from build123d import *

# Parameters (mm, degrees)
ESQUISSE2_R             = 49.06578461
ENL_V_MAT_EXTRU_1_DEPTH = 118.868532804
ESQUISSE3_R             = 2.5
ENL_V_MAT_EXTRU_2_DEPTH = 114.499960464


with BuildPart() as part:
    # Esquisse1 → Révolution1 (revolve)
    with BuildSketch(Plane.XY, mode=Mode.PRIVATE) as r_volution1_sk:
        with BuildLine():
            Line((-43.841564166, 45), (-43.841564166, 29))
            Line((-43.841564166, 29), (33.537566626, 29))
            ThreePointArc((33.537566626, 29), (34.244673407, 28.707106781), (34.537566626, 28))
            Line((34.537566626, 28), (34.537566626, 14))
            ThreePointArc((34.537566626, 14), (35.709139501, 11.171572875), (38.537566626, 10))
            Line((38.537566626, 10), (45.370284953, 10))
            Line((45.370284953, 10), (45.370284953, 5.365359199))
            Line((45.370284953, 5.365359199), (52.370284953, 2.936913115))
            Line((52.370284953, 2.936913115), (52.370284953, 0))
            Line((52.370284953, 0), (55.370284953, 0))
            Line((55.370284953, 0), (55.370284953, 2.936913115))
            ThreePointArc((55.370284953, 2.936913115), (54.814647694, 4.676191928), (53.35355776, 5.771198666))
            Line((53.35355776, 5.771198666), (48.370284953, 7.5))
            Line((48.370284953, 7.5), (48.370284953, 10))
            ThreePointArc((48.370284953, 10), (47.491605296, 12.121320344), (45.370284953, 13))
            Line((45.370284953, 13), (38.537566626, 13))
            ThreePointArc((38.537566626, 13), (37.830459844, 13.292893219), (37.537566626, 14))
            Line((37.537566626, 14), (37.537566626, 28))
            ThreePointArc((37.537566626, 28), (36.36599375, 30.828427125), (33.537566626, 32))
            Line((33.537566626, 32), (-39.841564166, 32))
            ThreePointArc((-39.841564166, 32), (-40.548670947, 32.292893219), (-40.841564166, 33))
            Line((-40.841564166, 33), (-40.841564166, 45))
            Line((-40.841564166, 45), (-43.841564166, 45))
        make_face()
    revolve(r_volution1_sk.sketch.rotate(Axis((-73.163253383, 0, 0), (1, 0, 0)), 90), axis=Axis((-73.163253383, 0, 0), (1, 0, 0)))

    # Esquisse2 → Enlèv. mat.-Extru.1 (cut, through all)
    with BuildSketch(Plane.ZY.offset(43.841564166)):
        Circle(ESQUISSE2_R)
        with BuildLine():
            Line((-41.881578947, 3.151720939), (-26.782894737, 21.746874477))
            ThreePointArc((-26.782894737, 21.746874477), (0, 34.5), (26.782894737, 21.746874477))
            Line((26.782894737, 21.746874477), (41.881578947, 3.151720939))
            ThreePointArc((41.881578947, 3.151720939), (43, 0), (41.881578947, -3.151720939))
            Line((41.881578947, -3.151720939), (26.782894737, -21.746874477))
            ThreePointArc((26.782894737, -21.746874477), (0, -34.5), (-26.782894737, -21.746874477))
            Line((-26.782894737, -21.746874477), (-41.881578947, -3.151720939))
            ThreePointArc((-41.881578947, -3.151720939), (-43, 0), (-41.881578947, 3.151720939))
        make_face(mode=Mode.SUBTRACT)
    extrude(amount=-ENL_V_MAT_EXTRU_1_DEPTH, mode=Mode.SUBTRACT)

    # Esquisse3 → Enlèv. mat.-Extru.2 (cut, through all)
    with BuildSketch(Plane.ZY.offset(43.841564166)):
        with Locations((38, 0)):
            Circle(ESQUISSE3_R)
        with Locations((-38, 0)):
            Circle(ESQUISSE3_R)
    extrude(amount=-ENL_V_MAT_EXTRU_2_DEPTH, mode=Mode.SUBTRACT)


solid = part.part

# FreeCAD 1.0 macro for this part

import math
import FreeCAD as App
import Part
import Sketcher

V = App.Vector

doc = App.newDocument("Part")
body = doc.addObject("PartDesign::Body", "Body")

# Sketch on XY plane
sketch1 = doc.addObject("Sketcher::SketchObject", "Sketch")
body.addObject(sketch1)
sketch1.AttachmentSupport = (doc.XY_Plane, [""])
sketch1.MapMode = "FlatFace"
sketch1.addGeometry([
    Part.LineSegment(V(-43.841564, 45, 0), V(-43.841564, 29, 0)),  # 0
    Part.LineSegment(V(-43.841564, 29, 0), V(33.537567, 29, 0)),  # 1
    Part.ArcOfCircle(Part.Circle(V(33.537567, 28, 0), V(0, 0, 1), 1), math.radians(0), math.radians(90)),  # 2
    Part.LineSegment(V(34.537567, 28, 0), V(34.537567, 14, 0)),  # 3
    Part.ArcOfCircle(Part.Circle(V(38.537567, 14, 0), V(0, 0, 1), 4), math.radians(180), math.radians(270)),  # 4
    Part.LineSegment(V(38.537567, 10, 0), V(45.370285, 10, 0)),  # 5
    Part.LineSegment(V(45.370285, 10, 0), V(45.370285, 5.365359, 0)),  # 6
    Part.LineSegment(V(45.370285, 5.365359, 0), V(52.370285, 2.936913, 0)),  # 7
    Part.LineSegment(V(52.370285, 2.936913, 0), V(52.370285, 0, 0)),  # 8
    Part.LineSegment(V(52.370285, 0, 0), V(55.370285, 0, 0)),  # 9
    Part.LineSegment(V(55.370285, 0, 0), V(55.370285, 2.936913, 0)),  # 10
    Part.ArcOfCircle(Part.Circle(V(52.370285, 2.936913, 0), V(0, 0, 1), 3), math.radians(0), math.radians(70.867273)),  # 11
    Part.LineSegment(V(53.353558, 5.771199, 0), V(48.370285, 7.5, 0)),  # 12
    Part.LineSegment(V(48.370285, 7.5, 0), V(48.370285, 10, 0)),  # 13
    Part.ArcOfCircle(Part.Circle(V(45.370285, 10, 0), V(0, 0, 1), 3), math.radians(0), math.radians(90)),  # 14
    Part.LineSegment(V(45.370285, 13, 0), V(38.537567, 13, 0)),  # 15
    Part.ArcOfCircle(Part.Circle(V(38.537567, 14, 0), V(0, 0, 1), 1), math.radians(180), math.radians(270)),  # 16
    Part.LineSegment(V(37.537567, 14, 0), V(37.537567, 28, 0)),  # 17
    Part.ArcOfCircle(Part.Circle(V(33.537567, 28, 0), V(0, 0, 1), 4), math.radians(0), math.radians(90)),  # 18
    Part.LineSegment(V(33.537567, 32, 0), V(-39.841564, 32, 0)),  # 19
    Part.ArcOfCircle(Part.Circle(V(-39.841564, 33, 0), V(0, 0, 1), 1), math.radians(-180), math.radians(-90)),  # 20
    Part.LineSegment(V(-40.841564, 33, 0), V(-40.841564, 45, 0)),  # 21
    Part.LineSegment(V(-40.841564, 45, 0), V(-43.841564, 45, 0)),  # 22
], False)
sketch1.addConstraint([
    Sketcher.Constraint("Coincident", 0, 2, 1, 1),
    Sketcher.Constraint("Tangent", 1, 2, 2, 2),
    Sketcher.Constraint("Tangent", 2, 1, 3, 1),
    Sketcher.Constraint("Tangent", 3, 2, 4, 1),
    Sketcher.Constraint("Tangent", 4, 2, 5, 1),
    Sketcher.Constraint("Coincident", 5, 2, 6, 1),
    Sketcher.Constraint("Coincident", 6, 2, 7, 1),
    Sketcher.Constraint("Coincident", 7, 2, 8, 1),
    Sketcher.Constraint("Coincident", 8, 2, 9, 1),
    Sketcher.Constraint("Coincident", 9, 2, 10, 1),
    Sketcher.Constraint("Tangent", 10, 2, 11, 1),
    Sketcher.Constraint("Tangent", 11, 2, 12, 1),
    Sketcher.Constraint("Coincident", 12, 2, 13, 1),
    Sketcher.Constraint("Tangent", 13, 2, 14, 1),
    Sketcher.Constraint("Tangent", 14, 2, 15, 1),
    Sketcher.Constraint("Tangent", 15, 2, 16, 2),
    Sketcher.Constraint("Tangent", 16, 1, 17, 1),
    Sketcher.Constraint("Tangent", 17, 2, 18, 1),
    Sketcher.Constraint("Tangent", 18, 2, 19, 1),
    Sketcher.Constraint("Tangent", 19, 2, 20, 2),
    Sketcher.Constraint("Tangent", 20, 1, 21, 1),
    Sketcher.Constraint("Coincident", 21, 2, 22, 1),
    Sketcher.Constraint("Coincident", 22, 2, 0, 1),
    Sketcher.Constraint("Vertical", 0),
    Sketcher.Constraint("Horizontal", 1),
    Sketcher.Constraint("Vertical", 3),
    Sketcher.Constraint("Horizontal", 5),
    Sketcher.Constraint("Vertical", 6),
    Sketcher.Constraint("Vertical", 8),
    Sketcher.Constraint("Horizontal", 9),
    Sketcher.Constraint("Vertical", 10),
    Sketcher.Constraint("Vertical", 13),
    Sketcher.Constraint("Horizontal", 15),
    Sketcher.Constraint("Vertical", 17),
    Sketcher.Constraint("Horizontal", 19),
    Sketcher.Constraint("Vertical", 21),
    Sketcher.Constraint("Horizontal", 22),
    Sketcher.Constraint("Coincident", 16, 3, 4, 3),
    Sketcher.Constraint("Coincident", 18, 3, 2, 3),
    Sketcher.Constraint("Coincident", 5, 2, 14, 3),
    Sketcher.Constraint("Coincident", 7, 2, 11, 3),
    Sketcher.Constraint("Equal", 11, 14),
    Sketcher.Constraint("Equal", 2, 16),
    Sketcher.Constraint("Equal", 16, 20),
    Sketcher.Constraint("PointOnObject", 8, 2, -1),
    Sketcher.Constraint("Parallel", 7, 12),
    Sketcher.Constraint("Equal", 9, 22),
    Sketcher.Constraint("Radius", 2, 1.0),
    Sketcher.Constraint("Radius", 4, 4.0),
    Sketcher.Constraint("DistanceY", 0, 2, 0, 1, 16.0),
    Sketcher.Constraint("DistanceY", 3, 2, 3, 1, 14.0),
    Sketcher.Constraint("DistanceY", 13, 1, 13, 2, 2.5),
    Sketcher.Constraint("DistanceY", -1, 1, 2, 3, 28.0),
    Sketcher.Constraint("DistanceX", 14, 3, 11, 3, 7.0),
    Sketcher.Constraint("DistanceX", 1, 1, 1, 2, 77.379131),
    Sketcher.Constraint("DistanceX", 5, 1, 5, 2, 6.832718),
    Sketcher.Constraint("DistanceY", 6, 2, 6, 1, 4.634641),
    Sketcher.Constraint("DistanceX", -1, 1, 2, 3, 33.537567),
])
revolution = doc.addObject("PartDesign::Revolution", "Revolution")
body.addObject(revolution)
revolution.Profile = sketch1
revolution.ReferenceAxis = (sketch1, ["H_Axis"])
revolution.Angle = 360

# Sketch on YZ plane
sketch2 = doc.addObject("Sketcher::SketchObject", "Sketch001")
body.addObject(sketch2)
sketch2.AttachmentSupport = (doc.YZ_Plane, [""])
sketch2.MapMode = "FlatFace"
sketch2.AttachmentOffset = App.Placement(V(0, 0, -43.841564), App.Rotation())
sketch2.addGeometry([
    Part.Circle(V(0, 0, 0), V(0, 0, 1), 49.065785),  # 0
    Part.ArcOfCircle(Part.Circle(V(0, -38, 0), V(0, 0, 1), 5), math.radians(-129.075521), math.radians(-50.924479)),  # 1
    Part.LineSegment(V(3.151721, -41.881579, 0), V(21.746874, -26.782895, 0)),  # 2
    Part.ArcOfCircle(Part.Circle(V(0, 0, 0), V(0, 0, 1), 34.5), math.radians(-50.924479), math.radians(50.924479)),  # 3
    Part.LineSegment(V(21.746874, 26.782895, 0), V(3.151721, 41.881579, 0)),  # 4
    Part.ArcOfCircle(Part.Circle(V(0, 38, 0), V(0, 0, 1), 5), math.radians(50.924479), math.radians(129.075521)),  # 5
    Part.LineSegment(V(-3.151721, 41.881579, 0), V(-21.746874, 26.782895, 0)),  # 6
    Part.ArcOfCircle(Part.Circle(V(0, 0, 0), V(0, 0, 1), 34.5), math.radians(129.075521), math.radians(230.924479)),  # 7
    Part.LineSegment(V(-21.746874, -26.782895, 0), V(-3.151721, -41.881579, 0)),  # 8
], False)
sketch2.addConstraint([
    Sketcher.Constraint("Tangent", 1, 2, 2, 1),
    Sketcher.Constraint("Tangent", 2, 2, 3, 1),
    Sketcher.Constraint("Tangent", 3, 2, 4, 1),
    Sketcher.Constraint("Tangent", 4, 2, 5, 1),
    Sketcher.Constraint("Tangent", 5, 2, 6, 1),
    Sketcher.Constraint("Tangent", 6, 2, 7, 1),
    Sketcher.Constraint("Tangent", 7, 2, 8, 1),
    Sketcher.Constraint("Tangent", 8, 2, 1, 1),
    Sketcher.Constraint("Coincident", 0, 3, -1, 1),
    Sketcher.Constraint("Coincident", 3, 3, -1, 1),
    Sketcher.Constraint("Coincident", 7, 3, -1, 1),
    Sketcher.Constraint("Equal", 1, 5),
    Sketcher.Constraint("Equal", 3, 7),
    Sketcher.Constraint("Symmetric", 1, 3, 5, 3, -1, 1),
    Sketcher.Constraint("PointOnObject", 1, 3, -2),
    Sketcher.Constraint("Radius", 1, 5.0),
    Sketcher.Constraint("Radius", 3, 34.5),
    Sketcher.Constraint("DistanceY", 1, 3, -1, 1, 38.0),
    Sketcher.Constraint("Diameter", 0, 98.131569),
])
pocket1 = doc.addObject("PartDesign::Pocket", "Pocket")
body.addObject(pocket1)
pocket1.Profile = sketch2
pocket1.Type = "ThroughAll"
pocket1.Reversed = True

# Sketch on YZ plane
sketch3 = doc.addObject("Sketcher::SketchObject", "Sketch002")
body.addObject(sketch3)
sketch3.AttachmentSupport = (doc.YZ_Plane, [""])
sketch3.MapMode = "FlatFace"
sketch3.AttachmentOffset = App.Placement(V(0, 0, -43.841564), App.Rotation())
sketch3.addGeometry([
    Part.Circle(V(0, 38, 0), V(0, 0, 1), 2.5),
    Part.Circle(V(0, -38, 0), V(0, 0, 1), 2.5),
], False)
sketch3.addConstraint([
    Sketcher.Constraint("Equal", 0, 1),
    Sketcher.Constraint("Symmetric", 0, 3, 1, 3, -1, 1),
    Sketcher.Constraint("PointOnObject", 0, 3, -2),
    Sketcher.Constraint("Diameter", 0, 5.0),
    Sketcher.Constraint("DistanceY", -1, 1, 0, 3, 38.0),
])
pocket2 = doc.addObject("PartDesign::Pocket", "Pocket001")
body.addObject(pocket2)
pocket2.Profile = sketch3
pocket2.Type = "ThroughAll"
pocket2.Reversed = True

doc.recompute()
